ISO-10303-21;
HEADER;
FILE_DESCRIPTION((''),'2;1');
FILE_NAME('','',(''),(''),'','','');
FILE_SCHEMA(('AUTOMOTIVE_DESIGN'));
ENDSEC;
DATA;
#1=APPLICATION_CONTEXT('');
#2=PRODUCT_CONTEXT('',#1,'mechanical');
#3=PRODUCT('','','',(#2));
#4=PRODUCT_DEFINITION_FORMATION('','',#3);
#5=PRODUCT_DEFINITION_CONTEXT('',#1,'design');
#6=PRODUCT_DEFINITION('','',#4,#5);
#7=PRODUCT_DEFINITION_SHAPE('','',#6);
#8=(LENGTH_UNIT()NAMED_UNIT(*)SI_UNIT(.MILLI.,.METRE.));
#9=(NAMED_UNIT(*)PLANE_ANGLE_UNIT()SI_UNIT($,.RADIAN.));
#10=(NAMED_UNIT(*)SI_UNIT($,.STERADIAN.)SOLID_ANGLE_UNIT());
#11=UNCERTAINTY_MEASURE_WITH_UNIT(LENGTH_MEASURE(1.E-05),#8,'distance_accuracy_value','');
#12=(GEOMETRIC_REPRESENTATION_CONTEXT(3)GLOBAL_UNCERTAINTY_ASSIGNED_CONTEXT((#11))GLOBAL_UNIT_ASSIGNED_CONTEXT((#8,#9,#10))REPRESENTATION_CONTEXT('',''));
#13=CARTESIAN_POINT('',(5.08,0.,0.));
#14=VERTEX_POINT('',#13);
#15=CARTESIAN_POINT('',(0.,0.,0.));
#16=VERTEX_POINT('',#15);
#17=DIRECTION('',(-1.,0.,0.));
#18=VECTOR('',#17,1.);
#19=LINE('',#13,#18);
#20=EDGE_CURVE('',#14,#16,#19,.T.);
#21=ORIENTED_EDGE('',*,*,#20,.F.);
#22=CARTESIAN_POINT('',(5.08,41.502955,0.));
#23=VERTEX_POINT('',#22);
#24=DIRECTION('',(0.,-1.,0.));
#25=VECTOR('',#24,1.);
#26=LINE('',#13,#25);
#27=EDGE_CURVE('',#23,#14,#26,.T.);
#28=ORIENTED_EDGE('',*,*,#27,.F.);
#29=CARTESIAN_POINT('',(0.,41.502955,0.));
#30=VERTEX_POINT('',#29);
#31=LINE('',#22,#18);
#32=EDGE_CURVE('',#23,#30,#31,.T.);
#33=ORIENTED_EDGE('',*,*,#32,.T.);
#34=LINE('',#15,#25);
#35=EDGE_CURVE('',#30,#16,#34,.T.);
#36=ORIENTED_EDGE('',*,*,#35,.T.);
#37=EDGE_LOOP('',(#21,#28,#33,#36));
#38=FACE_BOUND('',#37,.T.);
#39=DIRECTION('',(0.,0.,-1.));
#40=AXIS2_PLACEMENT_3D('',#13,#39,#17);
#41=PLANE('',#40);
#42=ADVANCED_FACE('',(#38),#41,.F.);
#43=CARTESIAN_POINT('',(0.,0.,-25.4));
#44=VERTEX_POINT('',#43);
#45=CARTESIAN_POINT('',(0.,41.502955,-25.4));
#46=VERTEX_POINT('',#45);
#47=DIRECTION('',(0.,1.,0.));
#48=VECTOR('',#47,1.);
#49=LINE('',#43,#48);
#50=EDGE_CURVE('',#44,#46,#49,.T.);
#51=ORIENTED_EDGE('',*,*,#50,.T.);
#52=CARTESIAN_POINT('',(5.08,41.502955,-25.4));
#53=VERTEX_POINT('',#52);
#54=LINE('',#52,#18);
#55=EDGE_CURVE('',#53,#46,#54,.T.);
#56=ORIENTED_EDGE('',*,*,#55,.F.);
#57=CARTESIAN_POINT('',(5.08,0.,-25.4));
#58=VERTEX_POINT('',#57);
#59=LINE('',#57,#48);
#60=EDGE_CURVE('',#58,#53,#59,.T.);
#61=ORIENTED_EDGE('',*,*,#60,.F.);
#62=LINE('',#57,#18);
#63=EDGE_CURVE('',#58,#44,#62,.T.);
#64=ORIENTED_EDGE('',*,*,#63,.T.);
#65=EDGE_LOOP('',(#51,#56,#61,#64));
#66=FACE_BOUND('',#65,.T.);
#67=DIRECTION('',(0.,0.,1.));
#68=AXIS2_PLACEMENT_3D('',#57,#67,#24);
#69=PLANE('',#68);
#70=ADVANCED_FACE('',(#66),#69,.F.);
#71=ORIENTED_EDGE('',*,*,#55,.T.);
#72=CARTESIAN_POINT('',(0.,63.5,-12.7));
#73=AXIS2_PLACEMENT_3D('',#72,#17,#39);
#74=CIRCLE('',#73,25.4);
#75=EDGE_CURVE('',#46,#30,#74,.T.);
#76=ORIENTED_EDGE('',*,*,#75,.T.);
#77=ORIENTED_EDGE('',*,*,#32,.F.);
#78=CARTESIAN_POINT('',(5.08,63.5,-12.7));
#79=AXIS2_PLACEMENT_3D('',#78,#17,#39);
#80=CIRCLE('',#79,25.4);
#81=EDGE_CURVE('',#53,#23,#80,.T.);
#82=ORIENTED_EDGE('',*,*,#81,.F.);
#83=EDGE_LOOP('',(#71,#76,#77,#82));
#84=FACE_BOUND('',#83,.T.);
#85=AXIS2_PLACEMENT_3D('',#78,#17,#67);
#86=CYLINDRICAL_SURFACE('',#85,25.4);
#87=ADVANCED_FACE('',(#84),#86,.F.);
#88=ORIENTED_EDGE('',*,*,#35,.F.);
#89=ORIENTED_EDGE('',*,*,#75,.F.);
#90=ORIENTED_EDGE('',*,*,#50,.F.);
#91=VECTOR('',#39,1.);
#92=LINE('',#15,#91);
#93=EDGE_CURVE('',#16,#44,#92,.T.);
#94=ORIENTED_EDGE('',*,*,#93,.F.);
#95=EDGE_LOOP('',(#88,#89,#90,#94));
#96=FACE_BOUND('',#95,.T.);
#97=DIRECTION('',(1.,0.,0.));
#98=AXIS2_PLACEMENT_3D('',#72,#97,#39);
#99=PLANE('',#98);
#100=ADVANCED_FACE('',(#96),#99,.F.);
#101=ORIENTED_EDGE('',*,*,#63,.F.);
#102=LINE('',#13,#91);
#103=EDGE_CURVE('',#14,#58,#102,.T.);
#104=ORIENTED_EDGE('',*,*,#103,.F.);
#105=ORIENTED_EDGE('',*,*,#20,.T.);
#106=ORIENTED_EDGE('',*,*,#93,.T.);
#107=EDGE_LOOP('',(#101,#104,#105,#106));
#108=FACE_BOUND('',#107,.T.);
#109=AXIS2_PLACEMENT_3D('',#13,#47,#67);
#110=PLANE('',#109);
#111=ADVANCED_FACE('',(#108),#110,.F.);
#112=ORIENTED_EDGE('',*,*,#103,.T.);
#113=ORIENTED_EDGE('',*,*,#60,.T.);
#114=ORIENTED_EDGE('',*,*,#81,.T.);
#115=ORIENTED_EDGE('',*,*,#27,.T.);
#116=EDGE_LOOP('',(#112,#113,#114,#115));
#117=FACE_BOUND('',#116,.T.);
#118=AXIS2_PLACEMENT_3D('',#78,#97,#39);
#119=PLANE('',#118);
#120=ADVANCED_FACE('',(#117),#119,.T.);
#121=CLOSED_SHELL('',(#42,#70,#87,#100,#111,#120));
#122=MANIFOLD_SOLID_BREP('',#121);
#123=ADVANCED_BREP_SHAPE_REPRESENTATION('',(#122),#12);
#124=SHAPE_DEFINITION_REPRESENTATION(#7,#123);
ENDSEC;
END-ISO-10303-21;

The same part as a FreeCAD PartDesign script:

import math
import FreeCAD as App
import Part
import Sketcher
Q = App.Units.Quantity

doc = App.newDocument("Part")
body = doc.addObject("PartDesign::Body", "Body")

# Sketch on YZ plane
sketch1 = body.newObject("Sketcher::SketchObject", "Sketch")
sketch1.AttachmentSupport = (doc.getObject("YZ_Plane"), [""])
sketch1.MapMode = "FlatFace"
sketch1.addGeometry(Part.LineSegment(App.Vector(0, 0, 0), App.Vector(0, -25.4, 0)), False)
sketch1.addGeometry(Part.LineSegment(App.Vector(0, -25.4, 0), App.Vector(41.502955, -25.4, 0)), False)
sketch1.addGeometry(Part.ArcOfCircle(Part.Circle(App.Vector(63.5, -12.7, 0), App.Vector(0, 0, 1), 25.4), math.radians(150), math.radians(210)), False)
sketch1.addGeometry(Part.LineSegment(App.Vector(41.502955, 0, 0), App.Vector(0, 0, 0)), False)
sketch1.addConstraint(Sketcher.Constraint("Coincident", 0, 2, 1, 1))
sketch1.addConstraint(Sketcher.Constraint("Coincident", 1, 2, 2, 2))
sketch1.addConstraint(Sketcher.Constraint("Coincident", 2, 1, 3, 1))
sketch1.addConstraint(Sketcher.Constraint("Coincident", 3, 2, 0, 1))
sketch1.addConstraint(Sketcher.Constraint("Vertical", 0))
sketch1.addConstraint(Sketcher.Constraint("Horizontal", 1))
sketch1.addConstraint(Sketcher.Constraint("Horizontal", 3))
sketch1.addConstraint(Sketcher.Constraint("Coincident", 3, 2, -1, 1))
sketch1.addConstraint(Sketcher.Constraint("Vertical", 1, 2, 2, 1))
sketch1.addConstraint(Sketcher.Constraint("Radius", 2, Q("1 in")))
sketch1.addConstraint(Sketcher.Constraint("DistanceY", 0, 2, 0, 1, Q("1 in")))
sketch1.addConstraint(Sketcher.Constraint("DistanceX", -1, 1, 2, 3, Q("2.5 in")))
pad1 = body.newObject("PartDesign::Pad", "Pad")
pad1.Profile = sketch1
pad1.Length = Q("0.2 in")

doc.recompute()
